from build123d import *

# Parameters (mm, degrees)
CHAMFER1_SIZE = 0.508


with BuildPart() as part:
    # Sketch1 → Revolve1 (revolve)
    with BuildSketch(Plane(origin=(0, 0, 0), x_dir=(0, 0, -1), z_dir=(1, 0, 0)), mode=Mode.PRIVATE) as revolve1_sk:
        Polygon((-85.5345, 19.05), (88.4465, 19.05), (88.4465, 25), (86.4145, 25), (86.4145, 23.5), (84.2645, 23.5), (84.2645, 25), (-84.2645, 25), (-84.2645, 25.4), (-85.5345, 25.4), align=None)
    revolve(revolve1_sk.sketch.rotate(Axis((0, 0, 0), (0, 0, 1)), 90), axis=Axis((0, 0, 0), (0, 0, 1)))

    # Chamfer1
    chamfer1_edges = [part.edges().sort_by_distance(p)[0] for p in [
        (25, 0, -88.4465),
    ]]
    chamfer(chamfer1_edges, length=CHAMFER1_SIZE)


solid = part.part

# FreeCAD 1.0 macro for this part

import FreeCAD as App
import Part
import Sketcher

V = App.Vector
Q = App.Units.Quantity


def edges_at(feature, points):
    """Names of the edges that pass closest to the given points."""
    edges = feature.Shape.Edges
    near = lambda p: min(range(len(edges)), key=lambda i: edges[i].distToShape(Part.Vertex(*p))[0])
    return sorted({f"Edge{near(p) + 1}" for p in points})

doc = App.newDocument("Part")
body = doc.addObject("PartDesign::Body", "Body")

sketch1 = doc.addObject("Sketcher::SketchObject", "Sketch")
body.addObject(sketch1)
sketch1.AttachmentSupport = (doc.YZ_Plane, [""])
sketch1.MapMode = "FlatFace"
sketch1.addGeometry(Part.LineSegment(V(19.05, 85.5345, 0), V(19.05, -88.4465, 0)), False)
sketch1.addGeometry(Part.LineSegment(V(19.05, -88.4465, 0), V(25, -88.4465, 0)), False)
sketch1.addGeometry(Part.LineSegment(V(25, -88.4465, 0), V(25, -86.4145, 0)), False)
sketch1.addGeometry(Part.LineSegment(V(25, -86.4145, 0), V(23.5, -86.4145, 0)), False)
sketch1.addGeometry(Part.LineSegment(V(23.5, -86.4145, 0), V(23.5, -84.2645, 0)), False)
sketch1.addGeometry(Part.LineSegment(V(23.5, -84.2645, 0), V(25, -84.2645, 0)), False)
sketch1.addGeometry(Part.LineSegment(V(25, -84.2645, 0), V(25, 84.2645, 0)), False)
sketch1.addGeometry(Part.LineSegment(V(25, 84.2645, 0), V(25.4, 84.2645, 0)), False)
sketch1.addGeometry(Part.LineSegment(V(25.4, 84.2645, 0), V(25.4, 85.5345, 0)), False)
sketch1.addGeometry(Part.LineSegment(V(25.4, 85.5345, 0), V(19.05, 85.5345, 0)), False)
sketch1.addConstraint(Sketcher.Constraint("Coincident", 0, 2, 1, 1))
sketch1.addConstraint(Sketcher.Constraint("Coincident", 1, 2, 2, 1))
sketch1.addConstraint(Sketcher.Constraint("Coincident", 2, 2, 3, 1))
sketch1.addConstraint(Sketcher.Constraint("Coincident", 3, 2, 4, 1))
sketch1.addConstraint(Sketcher.Constraint("Coincident", 4, 2, 5, 1))
sketch1.addConstraint(Sketcher.Constraint("Coincident", 5, 2, 6, 1))
sketch1.addConstraint(Sketcher.Constraint("Coincident", 6, 2, 7, 1))
sketch1.addConstraint(Sketcher.Constraint("Coincident", 7, 2, 8, 1))
sketch1.addConstraint(Sketcher.Constraint("Coincident", 8, 2, 9, 1))
sketch1.addConstraint(Sketcher.Constraint("Coincident", 9, 2, 0, 1))
sketch1.addConstraint(Sketcher.Constraint("Vertical", 0))
sketch1.addConstraint(Sketcher.Constraint("Horizontal", 1))
sketch1.addConstraint(Sketcher.Constraint("Vertical", 2))
sketch1.addConstraint(Sketcher.Constraint("Horizontal", 3))
sketch1.addConstraint(Sketcher.Constraint("Vertical", 4))
sketch1.addConstraint(Sketcher.Constraint("Horizontal", 5))
sketch1.addConstraint(Sketcher.Constraint("Vertical", 6))
sketch1.addConstraint(Sketcher.Constraint("Horizontal", 7))
sketch1.addConstraint(Sketcher.Constraint("Vertical", 8))
sketch1.addConstraint(Sketcher.Constraint("Horizontal", 9))
sketch1.addConstraint(Sketcher.Constraint("Vertical", 2, 2, 5, 2))
sketch1.addConstraint(Sketcher.Constraint("DistanceX", -1, 1, 7, 2, Q("1 in")))
sketch1.addConstraint(Sketcher.Constraint("DistanceX", 9, 2, 9, 1, Q("0.25 in")))
sketch1.addConstraint(Sketcher.Constraint("DistanceY", 2, 1, 2, 2, Q("0.08 in")))
sketch1.addConstraint(Sketcher.Constraint("DistanceY", 8, 1, 8, 2, Q("0.05 in")))
sketch1.addConstraint(Sketcher.Constraint("DistanceY", 6, 1, 6, 2, Q("6.635 in")))
sketch1.addConstraint(Sketcher.Constraint("DistanceX", 1, 1, 1, 2, Q("5.95 mm")))
sketch1.addConstraint(Sketcher.Constraint("DistanceX", 3, 2, 3, 1, Q("1.5 mm")))
sketch1.addConstraint(Sketcher.Constraint("DistanceY", 0, 2, 0, 1, Q("173.981 mm")))
sketch1.addConstraint(Sketcher.Constraint("DistanceY", 4, 2, -1, 1, Q("3.3175 in")))
revolution = doc.addObject("PartDesign::Revolution", "Revolution")
body.addObject(revolution)
revolution.Profile = sketch1
revolution.ReferenceAxis = (sketch1, ["V_Axis"])
revolution.Angle = 360
doc.recompute()

chamfer = doc.addObject("PartDesign::Chamfer", "Chamfer")
body.addObject(chamfer)
chamfer.Base = (revolution, edges_at(revolution, [(25, 0, -88.447)]))
chamfer.Size = Q("0.02 in")

doc.recompute()
